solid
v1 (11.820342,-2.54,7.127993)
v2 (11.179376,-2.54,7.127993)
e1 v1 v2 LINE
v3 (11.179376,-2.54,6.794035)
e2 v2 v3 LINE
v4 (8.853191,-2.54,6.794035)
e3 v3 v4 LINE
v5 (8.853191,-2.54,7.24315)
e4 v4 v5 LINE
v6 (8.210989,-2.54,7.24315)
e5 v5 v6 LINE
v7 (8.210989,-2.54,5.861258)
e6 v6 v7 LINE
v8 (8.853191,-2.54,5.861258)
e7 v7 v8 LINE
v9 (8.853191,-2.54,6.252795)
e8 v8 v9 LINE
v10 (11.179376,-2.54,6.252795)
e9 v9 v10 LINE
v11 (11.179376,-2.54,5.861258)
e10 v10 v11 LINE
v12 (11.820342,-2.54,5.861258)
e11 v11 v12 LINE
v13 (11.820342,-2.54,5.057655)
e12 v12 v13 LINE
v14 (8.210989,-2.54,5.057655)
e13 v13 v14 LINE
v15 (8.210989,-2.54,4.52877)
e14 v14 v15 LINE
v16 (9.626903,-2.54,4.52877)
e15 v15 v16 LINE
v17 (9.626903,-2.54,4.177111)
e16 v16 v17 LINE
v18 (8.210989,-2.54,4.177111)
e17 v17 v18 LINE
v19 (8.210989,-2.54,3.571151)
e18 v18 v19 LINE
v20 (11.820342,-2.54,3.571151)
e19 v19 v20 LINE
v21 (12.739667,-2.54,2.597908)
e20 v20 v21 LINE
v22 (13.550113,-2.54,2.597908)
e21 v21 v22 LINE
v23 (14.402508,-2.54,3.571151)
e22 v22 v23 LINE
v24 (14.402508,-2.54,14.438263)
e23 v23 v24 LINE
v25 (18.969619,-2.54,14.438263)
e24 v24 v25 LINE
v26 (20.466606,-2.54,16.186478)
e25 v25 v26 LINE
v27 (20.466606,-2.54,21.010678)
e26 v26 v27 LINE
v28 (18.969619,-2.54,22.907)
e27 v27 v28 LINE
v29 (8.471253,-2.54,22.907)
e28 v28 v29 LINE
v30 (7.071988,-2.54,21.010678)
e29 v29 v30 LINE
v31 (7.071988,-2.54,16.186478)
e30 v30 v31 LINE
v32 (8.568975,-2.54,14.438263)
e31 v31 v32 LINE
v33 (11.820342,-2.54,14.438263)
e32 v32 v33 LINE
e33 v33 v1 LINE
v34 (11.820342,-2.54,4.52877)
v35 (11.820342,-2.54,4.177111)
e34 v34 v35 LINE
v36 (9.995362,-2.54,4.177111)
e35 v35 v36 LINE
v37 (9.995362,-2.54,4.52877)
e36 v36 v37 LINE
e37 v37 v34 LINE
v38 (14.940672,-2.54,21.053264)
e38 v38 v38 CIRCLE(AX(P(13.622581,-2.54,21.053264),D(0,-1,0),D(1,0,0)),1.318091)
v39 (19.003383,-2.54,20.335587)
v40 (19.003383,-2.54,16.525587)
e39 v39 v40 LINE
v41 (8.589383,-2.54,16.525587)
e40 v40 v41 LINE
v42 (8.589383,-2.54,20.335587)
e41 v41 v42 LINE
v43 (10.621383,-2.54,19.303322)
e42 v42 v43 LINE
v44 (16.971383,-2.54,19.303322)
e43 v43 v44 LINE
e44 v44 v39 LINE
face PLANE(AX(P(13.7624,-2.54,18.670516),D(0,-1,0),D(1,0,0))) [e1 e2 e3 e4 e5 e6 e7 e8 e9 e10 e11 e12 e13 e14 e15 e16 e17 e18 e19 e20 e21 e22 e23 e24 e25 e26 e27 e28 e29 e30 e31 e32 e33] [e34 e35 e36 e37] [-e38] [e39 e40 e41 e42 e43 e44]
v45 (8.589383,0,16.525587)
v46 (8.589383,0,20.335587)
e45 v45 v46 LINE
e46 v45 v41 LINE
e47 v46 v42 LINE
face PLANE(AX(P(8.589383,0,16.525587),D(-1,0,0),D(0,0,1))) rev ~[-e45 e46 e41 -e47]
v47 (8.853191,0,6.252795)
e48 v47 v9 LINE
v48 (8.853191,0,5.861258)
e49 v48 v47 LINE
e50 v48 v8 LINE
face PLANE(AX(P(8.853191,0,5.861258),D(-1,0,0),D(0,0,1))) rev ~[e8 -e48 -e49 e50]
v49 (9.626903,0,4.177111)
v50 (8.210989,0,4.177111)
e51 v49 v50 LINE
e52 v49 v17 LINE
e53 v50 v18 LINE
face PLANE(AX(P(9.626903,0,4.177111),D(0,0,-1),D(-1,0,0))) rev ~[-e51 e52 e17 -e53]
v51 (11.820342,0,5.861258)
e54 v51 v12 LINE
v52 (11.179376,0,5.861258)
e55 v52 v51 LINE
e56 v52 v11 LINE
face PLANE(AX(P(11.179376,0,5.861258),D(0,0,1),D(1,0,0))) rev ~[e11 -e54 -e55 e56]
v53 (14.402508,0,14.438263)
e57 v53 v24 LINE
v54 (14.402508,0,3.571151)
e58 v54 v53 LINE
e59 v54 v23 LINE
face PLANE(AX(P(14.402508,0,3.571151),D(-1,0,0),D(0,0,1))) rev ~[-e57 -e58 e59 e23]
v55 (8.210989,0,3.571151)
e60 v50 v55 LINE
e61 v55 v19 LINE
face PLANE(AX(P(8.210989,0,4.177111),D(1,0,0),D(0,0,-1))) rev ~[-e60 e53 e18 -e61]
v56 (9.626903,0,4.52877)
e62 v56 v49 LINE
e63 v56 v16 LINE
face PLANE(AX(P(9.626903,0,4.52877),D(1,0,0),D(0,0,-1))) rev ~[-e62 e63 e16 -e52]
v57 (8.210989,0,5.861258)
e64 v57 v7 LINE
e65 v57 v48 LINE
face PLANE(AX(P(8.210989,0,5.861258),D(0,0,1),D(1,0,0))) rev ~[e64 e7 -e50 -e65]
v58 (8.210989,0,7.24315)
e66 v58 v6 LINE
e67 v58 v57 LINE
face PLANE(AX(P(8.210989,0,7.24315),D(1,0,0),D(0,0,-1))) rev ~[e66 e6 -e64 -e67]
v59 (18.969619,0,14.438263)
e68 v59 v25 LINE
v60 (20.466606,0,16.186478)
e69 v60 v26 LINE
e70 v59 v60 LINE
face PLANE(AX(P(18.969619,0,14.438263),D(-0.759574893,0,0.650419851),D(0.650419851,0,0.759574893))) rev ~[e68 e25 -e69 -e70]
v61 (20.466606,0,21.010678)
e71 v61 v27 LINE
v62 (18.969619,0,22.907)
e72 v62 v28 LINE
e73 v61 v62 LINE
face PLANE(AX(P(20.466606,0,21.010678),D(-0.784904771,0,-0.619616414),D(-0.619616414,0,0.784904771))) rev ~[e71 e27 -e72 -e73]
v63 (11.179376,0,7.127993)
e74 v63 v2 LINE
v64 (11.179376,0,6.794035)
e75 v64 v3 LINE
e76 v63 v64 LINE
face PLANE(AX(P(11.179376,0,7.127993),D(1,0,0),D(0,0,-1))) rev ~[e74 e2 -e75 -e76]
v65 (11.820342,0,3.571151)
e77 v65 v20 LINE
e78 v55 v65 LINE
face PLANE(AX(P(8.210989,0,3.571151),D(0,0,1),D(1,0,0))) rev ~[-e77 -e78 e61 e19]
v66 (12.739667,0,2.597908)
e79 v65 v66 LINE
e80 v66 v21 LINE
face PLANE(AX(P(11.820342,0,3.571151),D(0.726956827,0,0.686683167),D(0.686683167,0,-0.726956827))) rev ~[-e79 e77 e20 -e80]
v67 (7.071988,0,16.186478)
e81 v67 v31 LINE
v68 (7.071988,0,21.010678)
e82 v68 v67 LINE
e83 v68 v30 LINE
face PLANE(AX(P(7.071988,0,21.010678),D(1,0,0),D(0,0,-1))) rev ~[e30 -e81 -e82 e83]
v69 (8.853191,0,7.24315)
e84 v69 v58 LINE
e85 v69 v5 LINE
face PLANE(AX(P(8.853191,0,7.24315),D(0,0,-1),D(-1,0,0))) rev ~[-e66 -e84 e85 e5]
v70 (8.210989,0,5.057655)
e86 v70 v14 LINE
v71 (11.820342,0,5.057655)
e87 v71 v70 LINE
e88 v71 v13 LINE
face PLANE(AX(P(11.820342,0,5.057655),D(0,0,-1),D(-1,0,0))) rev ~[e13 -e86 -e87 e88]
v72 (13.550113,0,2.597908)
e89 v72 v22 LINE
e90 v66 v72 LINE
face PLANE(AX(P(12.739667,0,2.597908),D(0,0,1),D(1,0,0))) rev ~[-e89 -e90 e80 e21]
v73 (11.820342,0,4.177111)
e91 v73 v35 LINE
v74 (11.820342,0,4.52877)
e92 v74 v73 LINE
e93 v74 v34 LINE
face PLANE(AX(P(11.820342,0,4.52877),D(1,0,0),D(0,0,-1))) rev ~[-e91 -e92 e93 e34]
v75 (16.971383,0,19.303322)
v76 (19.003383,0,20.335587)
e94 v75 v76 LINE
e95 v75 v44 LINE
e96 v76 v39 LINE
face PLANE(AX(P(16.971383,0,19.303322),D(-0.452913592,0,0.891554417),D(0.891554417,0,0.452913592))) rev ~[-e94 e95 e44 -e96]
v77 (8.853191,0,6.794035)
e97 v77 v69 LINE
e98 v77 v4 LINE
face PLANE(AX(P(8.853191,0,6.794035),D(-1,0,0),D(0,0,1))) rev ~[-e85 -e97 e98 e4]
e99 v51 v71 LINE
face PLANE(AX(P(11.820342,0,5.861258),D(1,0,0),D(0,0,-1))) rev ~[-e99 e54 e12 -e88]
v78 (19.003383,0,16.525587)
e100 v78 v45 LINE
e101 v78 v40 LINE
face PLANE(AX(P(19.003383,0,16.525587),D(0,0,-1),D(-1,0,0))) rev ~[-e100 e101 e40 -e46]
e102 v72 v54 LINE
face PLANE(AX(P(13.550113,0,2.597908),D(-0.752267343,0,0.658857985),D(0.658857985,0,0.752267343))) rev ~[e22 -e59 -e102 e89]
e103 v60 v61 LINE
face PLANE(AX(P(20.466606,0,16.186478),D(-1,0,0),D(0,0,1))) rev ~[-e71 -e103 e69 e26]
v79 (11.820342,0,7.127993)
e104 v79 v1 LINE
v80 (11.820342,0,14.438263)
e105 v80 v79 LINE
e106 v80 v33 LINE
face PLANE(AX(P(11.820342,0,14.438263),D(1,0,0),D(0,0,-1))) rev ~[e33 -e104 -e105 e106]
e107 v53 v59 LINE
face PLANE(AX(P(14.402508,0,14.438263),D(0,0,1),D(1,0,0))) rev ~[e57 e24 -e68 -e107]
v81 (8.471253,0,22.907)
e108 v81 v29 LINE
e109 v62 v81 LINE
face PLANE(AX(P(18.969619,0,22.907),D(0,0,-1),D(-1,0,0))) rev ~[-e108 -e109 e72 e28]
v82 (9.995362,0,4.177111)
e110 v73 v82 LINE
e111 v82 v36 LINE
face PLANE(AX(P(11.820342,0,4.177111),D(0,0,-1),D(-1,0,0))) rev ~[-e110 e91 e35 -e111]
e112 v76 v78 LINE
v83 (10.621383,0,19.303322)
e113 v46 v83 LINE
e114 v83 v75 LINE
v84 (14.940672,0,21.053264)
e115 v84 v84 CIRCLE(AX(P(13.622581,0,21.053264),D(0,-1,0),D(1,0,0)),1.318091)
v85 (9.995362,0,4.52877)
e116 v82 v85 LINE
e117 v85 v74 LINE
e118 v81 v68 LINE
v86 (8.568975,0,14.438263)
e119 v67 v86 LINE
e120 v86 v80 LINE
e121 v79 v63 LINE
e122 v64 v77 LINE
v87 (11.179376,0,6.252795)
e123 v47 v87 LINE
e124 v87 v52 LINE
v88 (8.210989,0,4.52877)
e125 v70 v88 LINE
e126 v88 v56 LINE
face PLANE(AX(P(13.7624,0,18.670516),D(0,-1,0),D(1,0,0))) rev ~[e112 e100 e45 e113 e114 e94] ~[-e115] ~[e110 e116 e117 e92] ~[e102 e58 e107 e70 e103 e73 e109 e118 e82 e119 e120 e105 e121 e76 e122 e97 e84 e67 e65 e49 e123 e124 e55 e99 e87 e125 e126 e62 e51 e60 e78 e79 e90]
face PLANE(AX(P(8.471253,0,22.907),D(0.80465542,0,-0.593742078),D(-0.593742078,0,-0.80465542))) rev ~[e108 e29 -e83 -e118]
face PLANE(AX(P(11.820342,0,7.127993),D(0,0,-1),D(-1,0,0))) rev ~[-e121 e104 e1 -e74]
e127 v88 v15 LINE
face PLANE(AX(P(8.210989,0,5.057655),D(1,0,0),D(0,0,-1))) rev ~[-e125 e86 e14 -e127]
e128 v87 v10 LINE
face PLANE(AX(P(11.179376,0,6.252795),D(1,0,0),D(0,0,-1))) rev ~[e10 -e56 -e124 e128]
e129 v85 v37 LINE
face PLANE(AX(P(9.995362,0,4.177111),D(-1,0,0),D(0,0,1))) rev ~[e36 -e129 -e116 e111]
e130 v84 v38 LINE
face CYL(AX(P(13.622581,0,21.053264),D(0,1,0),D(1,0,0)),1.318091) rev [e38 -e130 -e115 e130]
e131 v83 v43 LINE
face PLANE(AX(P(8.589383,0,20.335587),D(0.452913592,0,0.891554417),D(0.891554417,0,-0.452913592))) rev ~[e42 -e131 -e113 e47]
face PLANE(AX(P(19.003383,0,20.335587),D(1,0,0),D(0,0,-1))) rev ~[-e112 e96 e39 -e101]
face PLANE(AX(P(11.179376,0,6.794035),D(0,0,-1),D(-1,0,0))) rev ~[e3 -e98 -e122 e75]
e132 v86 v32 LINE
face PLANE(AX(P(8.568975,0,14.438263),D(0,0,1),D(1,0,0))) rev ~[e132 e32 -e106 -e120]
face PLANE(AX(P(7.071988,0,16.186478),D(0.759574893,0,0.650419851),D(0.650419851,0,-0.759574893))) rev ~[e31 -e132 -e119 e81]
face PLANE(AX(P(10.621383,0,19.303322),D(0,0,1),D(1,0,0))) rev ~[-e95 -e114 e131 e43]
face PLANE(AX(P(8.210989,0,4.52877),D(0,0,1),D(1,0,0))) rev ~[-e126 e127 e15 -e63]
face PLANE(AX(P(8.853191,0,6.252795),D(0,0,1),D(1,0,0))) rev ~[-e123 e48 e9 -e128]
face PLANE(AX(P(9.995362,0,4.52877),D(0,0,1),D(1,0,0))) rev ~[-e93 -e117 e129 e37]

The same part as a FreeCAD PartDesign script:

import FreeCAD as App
import Part
import Sketcher

V = App.Vector
Q = App.Units.Quantity

doc = App.newDocument("Part")
params = doc.addObject("Spreadsheet::Sheet", "Params")
for row, (alias, value) in enumerate([
    ("sketch1_width", "0.41 in"),
    ("sketch1_width2", "0.25 in"),
    ("sketch1_height", "0.15 in"),
    ("pad1_length", "0.1 in"),
], start=1):
    params.set(f"A{row}", alias)
    params.set(f"B{row}", "=" + value)
    params.setAlias(f"B{row}", alias)

body = doc.addObject("PartDesign::Body", "Body")

sketch1 = body.newObject("Sketcher::SketchObject", "Sketch")
sketch1.AttachmentSupport = (doc.getObject("XZ_Plane"), [""])
sketch1.MapMode = "FlatFace"
sketch1.addGeometry(Part.LineSegment(V(18.969619, 22.907, 0), V(8.471253, 22.907, 0)), False)
sketch1.addGeometry(Part.LineSegment(V(8.471253, 22.907, 0), V(7.071988, 21.010678, 0)), False)
sketch1.addGeometry(Part.LineSegment(V(7.071988, 21.010678, 0), V(7.071988, 16.186478, 0)), False)
sketch1.addGeometry(Part.LineSegment(V(7.071988, 16.186478, 0), V(8.568975, 14.438263, 0)), False)
sketch1.addGeometry(Part.LineSegment(V(8.568975, 14.438263, 0), V(11.820342, 14.438263, 0)), False)
sketch1.addGeometry(Part.LineSegment(V(11.820342, 14.438263, 0), V(11.820342, 7.127993, 0)), False)
sketch1.addGeometry(Part.LineSegment(V(11.820342, 7.127993, 0), V(11.179376, 7.127993, 0)), False)
sketch1.addGeometry(Part.LineSegment(V(11.179376, 7.127993, 0), V(11.179376, 6.794035, 0)), False)
sketch1.addGeometry(Part.LineSegment(V(11.179376, 6.794035, 0), V(8.853191, 6.794035, 0)), False)
sketch1.addGeometry(Part.LineSegment(V(8.853191, 6.794035, 0), V(8.853191, 7.24315, 0)), False)
sketch1.addGeometry(Part.LineSegment(V(8.853191, 7.24315, 0), V(8.210989, 7.24315, 0)), False)
sketch1.addGeometry(Part.LineSegment(V(8.210989, 7.24315, 0), V(8.210989, 5.861258, 0)), False)
sketch1.addGeometry(Part.LineSegment(V(8.210989, 5.861258, 0), V(8.853191, 5.861258, 0)), False)
sketch1.addGeometry(Part.LineSegment(V(8.853191, 5.861258, 0), V(8.853191, 6.252795, 0)), False)
sketch1.addGeometry(Part.LineSegment(V(8.853191, 6.252795, 0), V(11.179376, 6.252795, 0)), False)
sketch1.addGeometry(Part.LineSegment(V(11.179376, 6.252795, 0), V(11.179376, 5.861258, 0)), False)
sketch1.addGeometry(Part.LineSegment(V(11.179376, 5.861258, 0), V(11.820342, 5.861258, 0)), False)
sketch1.addGeometry(Part.LineSegment(V(11.820342, 5.861258, 0), V(11.820342, 5.057655, 0)), False)
sketch1.addGeometry(Part.LineSegment(V(11.820342, 5.057655, 0), V(8.210989, 5.057655, 0)), False)
sketch1.addGeometry(Part.LineSegment(V(8.210989, 5.057655, 0), V(8.210989, 4.52877, 0)), False)
sketch1.addGeometry(Part.LineSegment(V(8.210989, 4.52877, 0), V(9.626903, 4.52877, 0)), False)
sketch1.addGeometry(Part.LineSegment(V(9.626903, 4.52877, 0), V(9.626903, 4.177111, 0)), False)
sketch1.addGeometry(Part.LineSegment(V(9.626903, 4.177111, 0), V(8.210989, 4.177111, 0)), False)
sketch1.addGeometry(Part.LineSegment(V(8.210989, 4.177111, 0), V(8.210989, 3.571151, 0)), False)
sketch1.addGeometry(Part.LineSegment(V(8.210989, 3.571151, 0), V(11.820342, 3.571151, 0)), False)
sketch1.addGeometry(Part.LineSegment(V(11.820342, 3.571151, 0), V(12.739667, 2.597908, 0)), False)
sketch1.addGeometry(Part.LineSegment(V(12.739667, 2.597908, 0), V(13.550113, 2.597908, 0)), False)
sketch1.addGeometry(Part.LineSegment(V(13.550113, 2.597908, 0), V(14.402508, 3.571151, 0)), False)
sketch1.addGeometry(Part.LineSegment(V(14.402508, 3.571151, 0), V(14.402508, 14.438263, 0)), False)
sketch1.addGeometry(Part.LineSegment(V(14.402508, 14.438263, 0), V(18.969619, 14.438263, 0)), False)
sketch1.addGeometry(Part.LineSegment(V(18.969619, 14.438263, 0), V(20.466606, 16.186478, 0)), False)
sketch1.addGeometry(Part.LineSegment(V(20.466606, 16.186478, 0), V(20.466606, 21.010678, 0)), False)
sketch1.addGeometry(Part.LineSegment(V(20.466606, 21.010678, 0), V(18.969619, 22.907, 0)), False)
sketch1.addGeometry(Part.LineSegment(V(19.003383, 16.525587, 0), V(8.589383, 16.525587, 0)), False)
sketch1.addGeometry(Part.LineSegment(V(8.589383, 16.525587, 0), V(8.589383, 20.335587, 0)), False)
sketch1.addGeometry(Part.LineSegment(V(8.589383, 20.335587, 0), V(10.621383, 19.303322, 0)), False)
sketch1.addGeometry(Part.LineSegment(V(10.621383, 19.303322, 0), V(16.971383, 19.303322, 0)), False)
sketch1.addGeometry(Part.LineSegment(V(16.971383, 19.303322, 0), V(19.003383, 20.335587, 0)), False)
sketch1.addGeometry(Part.LineSegment(V(19.003383, 20.335587, 0), V(19.003383, 16.525587, 0)), False)
sketch1.addGeometry(Part.Circle(V(13.622581, 21.053264, 0), V(0, 0, 1), 1.318091), False)
sketch1.addGeometry(Part.LineSegment(V(11.820342, 4.52877, 0), V(11.820342, 4.177111, 0)), False)
sketch1.addGeometry(Part.LineSegment(V(11.820342, 4.177111, 0), V(9.995362, 4.177111, 0)), False)
sketch1.addGeometry(Part.LineSegment(V(9.995362, 4.177111, 0), V(9.995362, 4.52877, 0)), False)
sketch1.addGeometry(Part.LineSegment(V(9.995362, 4.52877, 0), V(11.820342, 4.52877, 0)), False)
sketch1.addConstraint(Sketcher.Constraint("Coincident", 0, 2, 1, 1))
sketch1.addConstraint(Sketcher.Constraint("Coincident", 1, 2, 2, 1))
sketch1.addConstraint(Sketcher.Constraint("Coincident", 2, 2, 3, 1))
sketch1.addConstraint(Sketcher.Constraint("Coincident", 3, 2, 4, 1))
sketch1.addConstraint(Sketcher.Constraint("Coincident", 4, 2, 5, 1))
sketch1.addConstraint(Sketcher.Constraint("Coincident", 5, 2, 6, 1))
sketch1.addConstraint(Sketcher.Constraint("Coincident", 6, 2, 7, 1))
sketch1.addConstraint(Sketcher.Constraint("Coincident", 7, 2, 8, 1))
sketch1.addConstraint(Sketcher.Constraint("Coincident", 8, 2, 9, 1))
sketch1.addConstraint(Sketcher.Constraint("Coincident", 9, 2, 10, 1))
sketch1.addConstraint(Sketcher.Constraint("Coincident", 10, 2, 11, 1))
sketch1.addConstraint(Sketcher.Constraint("Coincident", 11, 2, 12, 1))
sketch1.addConstraint(Sketcher.Constraint("Coincident", 12, 2, 13, 1))
sketch1.addConstraint(Sketcher.Constraint("Coincident", 13, 2, 14, 1))
sketch1.addConstraint(Sketcher.Constraint("Coincident", 14, 2, 15, 1))
sketch1.addConstraint(Sketcher.Constraint("Coincident", 15, 2, 16, 1))
sketch1.addConstraint(Sketcher.Constraint("Coincident", 16, 2, 17, 1))
sketch1.addConstraint(Sketcher.Constraint("Coincident", 17, 2, 18, 1))
sketch1.addConstraint(Sketcher.Constraint("Coincident", 18, 2, 19, 1))
sketch1.addConstraint(Sketcher.Constraint("Coincident", 19, 2, 20, 1))
sketch1.addConstraint(Sketcher.Constraint("Coincident", 20, 2, 21, 1))
sketch1.addConstraint(Sketcher.Constraint("Coincident", 21, 2, 22, 1))
sketch1.addConstraint(Sketcher.Constraint("Coincident", 22, 2, 23, 1))
sketch1.addConstraint(Sketcher.Constraint("Coincident", 23, 2, 24, 1))
sketch1.addConstraint(Sketcher.Constraint("Coincident", 24, 2, 25, 1))
sketch1.addConstraint(Sketcher.Constraint("Coincident", 25, 2, 26, 1))
sketch1.addConstraint(Sketcher.Constraint("Coincident", 26, 2, 27, 1))
sketch1.addConstraint(Sketcher.Constraint("Coincident", 27, 2, 28, 1))
sketch1.addConstraint(Sketcher.Constraint("Coincident", 28, 2, 29, 1))
sketch1.addConstraint(Sketcher.Constraint("Coincident", 29, 2, 30, 1))
sketch1.addConstraint(Sketcher.Constraint("Coincident", 30, 2, 31, 1))
sketch1.addConstraint(Sketcher.Constraint("Coincident", 31, 2, 32, 1))
sketch1.addConstraint(Sketcher.Constraint("Coincident", 32, 2, 0, 1))
sketch1.addConstraint(Sketcher.Constraint("Coincident", 33, 2, 34, 1))
sketch1.addConstraint(Sketcher.Constraint("Coincident", 34, 2, 35, 1))
sketch1.addConstraint(Sketcher.Constraint("Coincident", 35, 2, 36, 1))
sketch1.addConstraint(Sketcher.Constraint("Coincident", 36, 2, 37, 1))
sketch1.addConstraint(Sketcher.Constraint("Coincident", 37, 2, 38, 1))
sketch1.addConstraint(Sketcher.Constraint("Coincident", 38, 2, 33, 1))
sketch1.addConstraint(Sketcher.Constraint("Coincident", 40, 2, 41, 1))
sketch1.addConstraint(Sketcher.Constraint("Coincident", 41, 2, 42, 1))
sketch1.addConstraint(Sketcher.Constraint("Coincident", 42, 2, 43, 1))
sketch1.addConstraint(Sketcher.Constraint("Coincident", 43, 2, 40, 1))
sketch1.addConstraint(Sketcher.Constraint("Horizontal", 0))
sketch1.addConstraint(Sketcher.Constraint("Vertical", 2))
sketch1.addConstraint(Sketcher.Constraint("Horizontal", 4))
sketch1.addConstraint(Sketcher.Constraint("Vertical", 5))
sketch1.addConstraint(Sketcher.Constraint("Horizontal", 6))
sketch1.addConstraint(Sketcher.Constraint("Vertical", 7))
sketch1.addConstraint(Sketcher.Constraint("Horizontal", 8))
sketch1.addConstraint(Sketcher.Constraint("Vertical", 9))
sketch1.addConstraint(Sketcher.Constraint("Horizontal", 10))
sketch1.addConstraint(Sketcher.Constraint("Vertical", 11))
sketch1.addConstraint(Sketcher.Constraint("Horizontal", 12))
sketch1.addConstraint(Sketcher.Constraint("Vertical", 13))
sketch1.addConstraint(Sketcher.Constraint("Horizontal", 14))
sketch1.addConstraint(Sketcher.Constraint("Vertical", 15))
sketch1.addConstraint(Sketcher.Constraint("Horizontal", 16))
sketch1.addConstraint(Sketcher.Constraint("Vertical", 17))
sketch1.addConstraint(Sketcher.Constraint("Horizontal", 18))
sketch1.addConstraint(Sketcher.Constraint("Vertical", 19))
sketch1.addConstraint(Sketcher.Constraint("Horizontal", 20))
sketch1.addConstraint(Sketcher.Constraint("Vertical", 21))
sketch1.addConstraint(Sketcher.Constraint("Horizontal", 22))
sketch1.addConstraint(Sketcher.Constraint("Vertical", 23))
sketch1.addConstraint(Sketcher.Constraint("Horizontal", 24))
sketch1.addConstraint(Sketcher.Constraint("Horizontal", 26))
sketch1.addConstraint(Sketcher.Constraint("Vertical", 28))
sketch1.addConstraint(Sketcher.Constraint("Horizontal", 29))
sketch1.addConstraint(Sketcher.Constraint("Vertical", 31))
sketch1.addConstraint(Sketcher.Constraint("Horizontal", 33))
sketch1.addConstraint(Sketcher.Constraint("Vertical", 34))
sketch1.addConstraint(Sketcher.Constraint("Horizontal", 36))
sketch1.addConstraint(Sketcher.Constraint("Vertical", 38))
sketch1.addConstraint(Sketcher.Constraint("Vertical", 40))
sketch1.addConstraint(Sketcher.Constraint("Horizontal", 41))
sketch1.addConstraint(Sketcher.Constraint("Vertical", 42))
sketch1.addConstraint(Sketcher.Constraint("Horizontal", 43))
sketch1.addConstraint(Sketcher.Constraint("Horizontal", 12, 2, 15, 2))
sketch1.addConstraint(Sketcher.Constraint("Horizontal", 24, 2, 27, 2))
sketch1.addConstraint(Sketcher.Constraint("Horizontal", 4, 2, 28, 2))
sketch1.addConstraint(Sketcher.Constraint("Horizontal", 2, 2, 30, 2))
sketch1.addConstraint(Sketcher.Constraint("Horizontal", 1, 2, 31, 2))
sketch1.addConstraint(Sketcher.Constraint("Horizontal", 34, 2, 37, 2))
sketch1.addConstraint(Sketcher.Constraint("Horizontal", 22, 2, 40, 2))
sketch1.addConstraint(Sketcher.Constraint("Horizontal", 20, 2, 42, 2))
sketch1.addConstraint(Sketcher.Constraint("Vertical", 9, 2, 12, 2))
sketch1.addConstraint(Sketcher.Constraint("Vertical", 7, 2, 14, 2))
sketch1.addConstraint(Sketcher.Constraint("Vertical", 5, 2, 16, 2))
sketch1.addConstraint(Sketcher.Constraint("Vertical", 11, 2, 18, 2))
sketch1.addConstraint(Sketcher.Constraint("Vertical", 19, 2, 22, 2))
sketch1.addConstraint(Sketcher.Constraint("Vertical", 17, 2, 24, 2))
sketch1.addConstraint(Sketcher.Constraint("Vertical", 29, 2, 32, 2))
sketch1.addConstraint(Sketcher.Constraint("Vertical", 24, 2, 40, 2))
sketch1.addConstraint(Sketcher.Constraint("Equal", 3, 30))
sketch1.addConstraint(Sketcher.Constraint("Equal", 35, 37))
sketch1.addConstraint(Sketcher.Constraint("DistanceX", 33, 2, 33, 1, Q("0.41 in")))
sketch1.addConstraint(Sketcher.Constraint("DistanceX", 36, 1, 36, 2, Q("0.25 in")))
sketch1.addConstraint(Sketcher.Constraint("DistanceY", 34, 1, 34, 2, Q("0.15 in")))
sketch1.addConstraint(Sketcher.Constraint("Diameter", 39, 2.636182))
sketch1.addConstraint(Sketcher.Constraint("DistanceY", 2, 2, 2, 1, 4.8242))
sketch1.addConstraint(Sketcher.Constraint("DistanceX", 29, 1, 29, 2, 4.567111))
sketch1.addConstraint(Sketcher.Constraint("DistanceX", 41, 2, 41, 1, 1.82498))
sketch1.addConstraint(Sketcher.Constraint("DistanceY", 5, 2, 5, 1, 7.31027))
sketch1.addConstraint(Sketcher.Constraint("DistanceY", 11, 2, 11, 1, 1.381892))
sketch1.addConstraint(Sketcher.Constraint("DistanceY", 21, 2, 21, 1, 0.351659))
sketch1.addConstraint(Sketcher.Constraint("DistanceY", 23, 2, 23, 1, 0.60596))
sketch1.addConstraint(Sketcher.Constraint("DistanceY", 28, 1, 28, 2, 10.867112))
sketch1.addConstraint(Sketcher.Constraint("DistanceY", -1, 1, 0, 2, 22.907))
sketch1.addConstraint(Sketcher.Constraint("DistanceY", 3, 2, 39, 3, 6.615001))
sketch1.addConstraint(Sketcher.Constraint("DistanceX", 3, 2, 6, 2, 2.610401))
sketch1.addConstraint(Sketcher.Constraint("DistanceY", 14, 2, 6, 2, 0.875198))
sketch1.addConstraint(Sketcher.Constraint("DistanceX", 34, 2, 39, 3, 5.033198))
sketch1.addConstraint(Sketcher.Constraint("Distance", 1, 2.356688))
sketch1.addConstraint(Sketcher.Constraint("Distance", 3, 2.30157))
sketch1.addConstraint(Sketcher.Constraint("Distance", 25, 1.338791))
sketch1.addConstraint(Sketcher.Constraint("Distance", 32, 2.41599))
sketch1.addConstraint(Sketcher.Constraint("DistanceX", 0, 2, 0, 1, 10.498366))
sketch1.addConstraint(Sketcher.Constraint("DistanceX", 4, 1, 4, 2, 3.251367))
sketch1.addConstraint(Sketcher.Constraint("DistanceX", 8, 2, 8, 1, 2.326185))
sketch1.addConstraint(Sketcher.Constraint("DistanceX", 10, 2, 10, 1, 0.642202))
sketch1.addConstraint(Sketcher.Constraint("DistanceX", 20, 1, 20, 2, 1.415914))
sketch1.addConstraint(Sketcher.Constraint("DistanceX", 26, 1, 26, 2, 0.810446))
sketch1.addConstraint(Sketcher.Constraint("DistanceY", 7, 2, 7, 1, 0.333958))
sketch1.addConstraint(Sketcher.Constraint("DistanceY", 9, 1, 9, 2, 0.449115))
sketch1.addConstraint(Sketcher.Constraint("DistanceY", 17, 2, 17, 1, 0.803603))
sketch1.addConstraint(Sketcher.Constraint("DistanceX", -1, 1, 39, 3, 13.622581))
sketch1.addConstraint(Sketcher.Constraint("DistanceY", -1, 1, 2, 2, 16.186478))
sketch1.addConstraint(Sketcher.Constraint("DistanceX", -1, 1, 8, 2, 8.853191))
sketch1.addConstraint(Sketcher.Constraint("DistanceY", 25, 2, 16, 2, 3.26335))
sketch1.addConstraint(Sketcher.Constraint("DistanceY", 2, 2, 33, 2, 0.339109))
sketch1.addConstraint(Sketcher.Constraint("DistanceY", 35, 2, 39, 3, 1.749942))
sketch1.setExpression("Constraints[96]", "Params.sketch1_width")
sketch1.setExpression("Constraints[97]", "Params.sketch1_width2")
sketch1.setExpression("Constraints[98]", "Params.sketch1_height")
pad1 = body.newObject("PartDesign::Pad", "Pad")
pad1.Profile = sketch1
pad1.setExpression("Length", "Params.pad1_length")

doc.recompute()
